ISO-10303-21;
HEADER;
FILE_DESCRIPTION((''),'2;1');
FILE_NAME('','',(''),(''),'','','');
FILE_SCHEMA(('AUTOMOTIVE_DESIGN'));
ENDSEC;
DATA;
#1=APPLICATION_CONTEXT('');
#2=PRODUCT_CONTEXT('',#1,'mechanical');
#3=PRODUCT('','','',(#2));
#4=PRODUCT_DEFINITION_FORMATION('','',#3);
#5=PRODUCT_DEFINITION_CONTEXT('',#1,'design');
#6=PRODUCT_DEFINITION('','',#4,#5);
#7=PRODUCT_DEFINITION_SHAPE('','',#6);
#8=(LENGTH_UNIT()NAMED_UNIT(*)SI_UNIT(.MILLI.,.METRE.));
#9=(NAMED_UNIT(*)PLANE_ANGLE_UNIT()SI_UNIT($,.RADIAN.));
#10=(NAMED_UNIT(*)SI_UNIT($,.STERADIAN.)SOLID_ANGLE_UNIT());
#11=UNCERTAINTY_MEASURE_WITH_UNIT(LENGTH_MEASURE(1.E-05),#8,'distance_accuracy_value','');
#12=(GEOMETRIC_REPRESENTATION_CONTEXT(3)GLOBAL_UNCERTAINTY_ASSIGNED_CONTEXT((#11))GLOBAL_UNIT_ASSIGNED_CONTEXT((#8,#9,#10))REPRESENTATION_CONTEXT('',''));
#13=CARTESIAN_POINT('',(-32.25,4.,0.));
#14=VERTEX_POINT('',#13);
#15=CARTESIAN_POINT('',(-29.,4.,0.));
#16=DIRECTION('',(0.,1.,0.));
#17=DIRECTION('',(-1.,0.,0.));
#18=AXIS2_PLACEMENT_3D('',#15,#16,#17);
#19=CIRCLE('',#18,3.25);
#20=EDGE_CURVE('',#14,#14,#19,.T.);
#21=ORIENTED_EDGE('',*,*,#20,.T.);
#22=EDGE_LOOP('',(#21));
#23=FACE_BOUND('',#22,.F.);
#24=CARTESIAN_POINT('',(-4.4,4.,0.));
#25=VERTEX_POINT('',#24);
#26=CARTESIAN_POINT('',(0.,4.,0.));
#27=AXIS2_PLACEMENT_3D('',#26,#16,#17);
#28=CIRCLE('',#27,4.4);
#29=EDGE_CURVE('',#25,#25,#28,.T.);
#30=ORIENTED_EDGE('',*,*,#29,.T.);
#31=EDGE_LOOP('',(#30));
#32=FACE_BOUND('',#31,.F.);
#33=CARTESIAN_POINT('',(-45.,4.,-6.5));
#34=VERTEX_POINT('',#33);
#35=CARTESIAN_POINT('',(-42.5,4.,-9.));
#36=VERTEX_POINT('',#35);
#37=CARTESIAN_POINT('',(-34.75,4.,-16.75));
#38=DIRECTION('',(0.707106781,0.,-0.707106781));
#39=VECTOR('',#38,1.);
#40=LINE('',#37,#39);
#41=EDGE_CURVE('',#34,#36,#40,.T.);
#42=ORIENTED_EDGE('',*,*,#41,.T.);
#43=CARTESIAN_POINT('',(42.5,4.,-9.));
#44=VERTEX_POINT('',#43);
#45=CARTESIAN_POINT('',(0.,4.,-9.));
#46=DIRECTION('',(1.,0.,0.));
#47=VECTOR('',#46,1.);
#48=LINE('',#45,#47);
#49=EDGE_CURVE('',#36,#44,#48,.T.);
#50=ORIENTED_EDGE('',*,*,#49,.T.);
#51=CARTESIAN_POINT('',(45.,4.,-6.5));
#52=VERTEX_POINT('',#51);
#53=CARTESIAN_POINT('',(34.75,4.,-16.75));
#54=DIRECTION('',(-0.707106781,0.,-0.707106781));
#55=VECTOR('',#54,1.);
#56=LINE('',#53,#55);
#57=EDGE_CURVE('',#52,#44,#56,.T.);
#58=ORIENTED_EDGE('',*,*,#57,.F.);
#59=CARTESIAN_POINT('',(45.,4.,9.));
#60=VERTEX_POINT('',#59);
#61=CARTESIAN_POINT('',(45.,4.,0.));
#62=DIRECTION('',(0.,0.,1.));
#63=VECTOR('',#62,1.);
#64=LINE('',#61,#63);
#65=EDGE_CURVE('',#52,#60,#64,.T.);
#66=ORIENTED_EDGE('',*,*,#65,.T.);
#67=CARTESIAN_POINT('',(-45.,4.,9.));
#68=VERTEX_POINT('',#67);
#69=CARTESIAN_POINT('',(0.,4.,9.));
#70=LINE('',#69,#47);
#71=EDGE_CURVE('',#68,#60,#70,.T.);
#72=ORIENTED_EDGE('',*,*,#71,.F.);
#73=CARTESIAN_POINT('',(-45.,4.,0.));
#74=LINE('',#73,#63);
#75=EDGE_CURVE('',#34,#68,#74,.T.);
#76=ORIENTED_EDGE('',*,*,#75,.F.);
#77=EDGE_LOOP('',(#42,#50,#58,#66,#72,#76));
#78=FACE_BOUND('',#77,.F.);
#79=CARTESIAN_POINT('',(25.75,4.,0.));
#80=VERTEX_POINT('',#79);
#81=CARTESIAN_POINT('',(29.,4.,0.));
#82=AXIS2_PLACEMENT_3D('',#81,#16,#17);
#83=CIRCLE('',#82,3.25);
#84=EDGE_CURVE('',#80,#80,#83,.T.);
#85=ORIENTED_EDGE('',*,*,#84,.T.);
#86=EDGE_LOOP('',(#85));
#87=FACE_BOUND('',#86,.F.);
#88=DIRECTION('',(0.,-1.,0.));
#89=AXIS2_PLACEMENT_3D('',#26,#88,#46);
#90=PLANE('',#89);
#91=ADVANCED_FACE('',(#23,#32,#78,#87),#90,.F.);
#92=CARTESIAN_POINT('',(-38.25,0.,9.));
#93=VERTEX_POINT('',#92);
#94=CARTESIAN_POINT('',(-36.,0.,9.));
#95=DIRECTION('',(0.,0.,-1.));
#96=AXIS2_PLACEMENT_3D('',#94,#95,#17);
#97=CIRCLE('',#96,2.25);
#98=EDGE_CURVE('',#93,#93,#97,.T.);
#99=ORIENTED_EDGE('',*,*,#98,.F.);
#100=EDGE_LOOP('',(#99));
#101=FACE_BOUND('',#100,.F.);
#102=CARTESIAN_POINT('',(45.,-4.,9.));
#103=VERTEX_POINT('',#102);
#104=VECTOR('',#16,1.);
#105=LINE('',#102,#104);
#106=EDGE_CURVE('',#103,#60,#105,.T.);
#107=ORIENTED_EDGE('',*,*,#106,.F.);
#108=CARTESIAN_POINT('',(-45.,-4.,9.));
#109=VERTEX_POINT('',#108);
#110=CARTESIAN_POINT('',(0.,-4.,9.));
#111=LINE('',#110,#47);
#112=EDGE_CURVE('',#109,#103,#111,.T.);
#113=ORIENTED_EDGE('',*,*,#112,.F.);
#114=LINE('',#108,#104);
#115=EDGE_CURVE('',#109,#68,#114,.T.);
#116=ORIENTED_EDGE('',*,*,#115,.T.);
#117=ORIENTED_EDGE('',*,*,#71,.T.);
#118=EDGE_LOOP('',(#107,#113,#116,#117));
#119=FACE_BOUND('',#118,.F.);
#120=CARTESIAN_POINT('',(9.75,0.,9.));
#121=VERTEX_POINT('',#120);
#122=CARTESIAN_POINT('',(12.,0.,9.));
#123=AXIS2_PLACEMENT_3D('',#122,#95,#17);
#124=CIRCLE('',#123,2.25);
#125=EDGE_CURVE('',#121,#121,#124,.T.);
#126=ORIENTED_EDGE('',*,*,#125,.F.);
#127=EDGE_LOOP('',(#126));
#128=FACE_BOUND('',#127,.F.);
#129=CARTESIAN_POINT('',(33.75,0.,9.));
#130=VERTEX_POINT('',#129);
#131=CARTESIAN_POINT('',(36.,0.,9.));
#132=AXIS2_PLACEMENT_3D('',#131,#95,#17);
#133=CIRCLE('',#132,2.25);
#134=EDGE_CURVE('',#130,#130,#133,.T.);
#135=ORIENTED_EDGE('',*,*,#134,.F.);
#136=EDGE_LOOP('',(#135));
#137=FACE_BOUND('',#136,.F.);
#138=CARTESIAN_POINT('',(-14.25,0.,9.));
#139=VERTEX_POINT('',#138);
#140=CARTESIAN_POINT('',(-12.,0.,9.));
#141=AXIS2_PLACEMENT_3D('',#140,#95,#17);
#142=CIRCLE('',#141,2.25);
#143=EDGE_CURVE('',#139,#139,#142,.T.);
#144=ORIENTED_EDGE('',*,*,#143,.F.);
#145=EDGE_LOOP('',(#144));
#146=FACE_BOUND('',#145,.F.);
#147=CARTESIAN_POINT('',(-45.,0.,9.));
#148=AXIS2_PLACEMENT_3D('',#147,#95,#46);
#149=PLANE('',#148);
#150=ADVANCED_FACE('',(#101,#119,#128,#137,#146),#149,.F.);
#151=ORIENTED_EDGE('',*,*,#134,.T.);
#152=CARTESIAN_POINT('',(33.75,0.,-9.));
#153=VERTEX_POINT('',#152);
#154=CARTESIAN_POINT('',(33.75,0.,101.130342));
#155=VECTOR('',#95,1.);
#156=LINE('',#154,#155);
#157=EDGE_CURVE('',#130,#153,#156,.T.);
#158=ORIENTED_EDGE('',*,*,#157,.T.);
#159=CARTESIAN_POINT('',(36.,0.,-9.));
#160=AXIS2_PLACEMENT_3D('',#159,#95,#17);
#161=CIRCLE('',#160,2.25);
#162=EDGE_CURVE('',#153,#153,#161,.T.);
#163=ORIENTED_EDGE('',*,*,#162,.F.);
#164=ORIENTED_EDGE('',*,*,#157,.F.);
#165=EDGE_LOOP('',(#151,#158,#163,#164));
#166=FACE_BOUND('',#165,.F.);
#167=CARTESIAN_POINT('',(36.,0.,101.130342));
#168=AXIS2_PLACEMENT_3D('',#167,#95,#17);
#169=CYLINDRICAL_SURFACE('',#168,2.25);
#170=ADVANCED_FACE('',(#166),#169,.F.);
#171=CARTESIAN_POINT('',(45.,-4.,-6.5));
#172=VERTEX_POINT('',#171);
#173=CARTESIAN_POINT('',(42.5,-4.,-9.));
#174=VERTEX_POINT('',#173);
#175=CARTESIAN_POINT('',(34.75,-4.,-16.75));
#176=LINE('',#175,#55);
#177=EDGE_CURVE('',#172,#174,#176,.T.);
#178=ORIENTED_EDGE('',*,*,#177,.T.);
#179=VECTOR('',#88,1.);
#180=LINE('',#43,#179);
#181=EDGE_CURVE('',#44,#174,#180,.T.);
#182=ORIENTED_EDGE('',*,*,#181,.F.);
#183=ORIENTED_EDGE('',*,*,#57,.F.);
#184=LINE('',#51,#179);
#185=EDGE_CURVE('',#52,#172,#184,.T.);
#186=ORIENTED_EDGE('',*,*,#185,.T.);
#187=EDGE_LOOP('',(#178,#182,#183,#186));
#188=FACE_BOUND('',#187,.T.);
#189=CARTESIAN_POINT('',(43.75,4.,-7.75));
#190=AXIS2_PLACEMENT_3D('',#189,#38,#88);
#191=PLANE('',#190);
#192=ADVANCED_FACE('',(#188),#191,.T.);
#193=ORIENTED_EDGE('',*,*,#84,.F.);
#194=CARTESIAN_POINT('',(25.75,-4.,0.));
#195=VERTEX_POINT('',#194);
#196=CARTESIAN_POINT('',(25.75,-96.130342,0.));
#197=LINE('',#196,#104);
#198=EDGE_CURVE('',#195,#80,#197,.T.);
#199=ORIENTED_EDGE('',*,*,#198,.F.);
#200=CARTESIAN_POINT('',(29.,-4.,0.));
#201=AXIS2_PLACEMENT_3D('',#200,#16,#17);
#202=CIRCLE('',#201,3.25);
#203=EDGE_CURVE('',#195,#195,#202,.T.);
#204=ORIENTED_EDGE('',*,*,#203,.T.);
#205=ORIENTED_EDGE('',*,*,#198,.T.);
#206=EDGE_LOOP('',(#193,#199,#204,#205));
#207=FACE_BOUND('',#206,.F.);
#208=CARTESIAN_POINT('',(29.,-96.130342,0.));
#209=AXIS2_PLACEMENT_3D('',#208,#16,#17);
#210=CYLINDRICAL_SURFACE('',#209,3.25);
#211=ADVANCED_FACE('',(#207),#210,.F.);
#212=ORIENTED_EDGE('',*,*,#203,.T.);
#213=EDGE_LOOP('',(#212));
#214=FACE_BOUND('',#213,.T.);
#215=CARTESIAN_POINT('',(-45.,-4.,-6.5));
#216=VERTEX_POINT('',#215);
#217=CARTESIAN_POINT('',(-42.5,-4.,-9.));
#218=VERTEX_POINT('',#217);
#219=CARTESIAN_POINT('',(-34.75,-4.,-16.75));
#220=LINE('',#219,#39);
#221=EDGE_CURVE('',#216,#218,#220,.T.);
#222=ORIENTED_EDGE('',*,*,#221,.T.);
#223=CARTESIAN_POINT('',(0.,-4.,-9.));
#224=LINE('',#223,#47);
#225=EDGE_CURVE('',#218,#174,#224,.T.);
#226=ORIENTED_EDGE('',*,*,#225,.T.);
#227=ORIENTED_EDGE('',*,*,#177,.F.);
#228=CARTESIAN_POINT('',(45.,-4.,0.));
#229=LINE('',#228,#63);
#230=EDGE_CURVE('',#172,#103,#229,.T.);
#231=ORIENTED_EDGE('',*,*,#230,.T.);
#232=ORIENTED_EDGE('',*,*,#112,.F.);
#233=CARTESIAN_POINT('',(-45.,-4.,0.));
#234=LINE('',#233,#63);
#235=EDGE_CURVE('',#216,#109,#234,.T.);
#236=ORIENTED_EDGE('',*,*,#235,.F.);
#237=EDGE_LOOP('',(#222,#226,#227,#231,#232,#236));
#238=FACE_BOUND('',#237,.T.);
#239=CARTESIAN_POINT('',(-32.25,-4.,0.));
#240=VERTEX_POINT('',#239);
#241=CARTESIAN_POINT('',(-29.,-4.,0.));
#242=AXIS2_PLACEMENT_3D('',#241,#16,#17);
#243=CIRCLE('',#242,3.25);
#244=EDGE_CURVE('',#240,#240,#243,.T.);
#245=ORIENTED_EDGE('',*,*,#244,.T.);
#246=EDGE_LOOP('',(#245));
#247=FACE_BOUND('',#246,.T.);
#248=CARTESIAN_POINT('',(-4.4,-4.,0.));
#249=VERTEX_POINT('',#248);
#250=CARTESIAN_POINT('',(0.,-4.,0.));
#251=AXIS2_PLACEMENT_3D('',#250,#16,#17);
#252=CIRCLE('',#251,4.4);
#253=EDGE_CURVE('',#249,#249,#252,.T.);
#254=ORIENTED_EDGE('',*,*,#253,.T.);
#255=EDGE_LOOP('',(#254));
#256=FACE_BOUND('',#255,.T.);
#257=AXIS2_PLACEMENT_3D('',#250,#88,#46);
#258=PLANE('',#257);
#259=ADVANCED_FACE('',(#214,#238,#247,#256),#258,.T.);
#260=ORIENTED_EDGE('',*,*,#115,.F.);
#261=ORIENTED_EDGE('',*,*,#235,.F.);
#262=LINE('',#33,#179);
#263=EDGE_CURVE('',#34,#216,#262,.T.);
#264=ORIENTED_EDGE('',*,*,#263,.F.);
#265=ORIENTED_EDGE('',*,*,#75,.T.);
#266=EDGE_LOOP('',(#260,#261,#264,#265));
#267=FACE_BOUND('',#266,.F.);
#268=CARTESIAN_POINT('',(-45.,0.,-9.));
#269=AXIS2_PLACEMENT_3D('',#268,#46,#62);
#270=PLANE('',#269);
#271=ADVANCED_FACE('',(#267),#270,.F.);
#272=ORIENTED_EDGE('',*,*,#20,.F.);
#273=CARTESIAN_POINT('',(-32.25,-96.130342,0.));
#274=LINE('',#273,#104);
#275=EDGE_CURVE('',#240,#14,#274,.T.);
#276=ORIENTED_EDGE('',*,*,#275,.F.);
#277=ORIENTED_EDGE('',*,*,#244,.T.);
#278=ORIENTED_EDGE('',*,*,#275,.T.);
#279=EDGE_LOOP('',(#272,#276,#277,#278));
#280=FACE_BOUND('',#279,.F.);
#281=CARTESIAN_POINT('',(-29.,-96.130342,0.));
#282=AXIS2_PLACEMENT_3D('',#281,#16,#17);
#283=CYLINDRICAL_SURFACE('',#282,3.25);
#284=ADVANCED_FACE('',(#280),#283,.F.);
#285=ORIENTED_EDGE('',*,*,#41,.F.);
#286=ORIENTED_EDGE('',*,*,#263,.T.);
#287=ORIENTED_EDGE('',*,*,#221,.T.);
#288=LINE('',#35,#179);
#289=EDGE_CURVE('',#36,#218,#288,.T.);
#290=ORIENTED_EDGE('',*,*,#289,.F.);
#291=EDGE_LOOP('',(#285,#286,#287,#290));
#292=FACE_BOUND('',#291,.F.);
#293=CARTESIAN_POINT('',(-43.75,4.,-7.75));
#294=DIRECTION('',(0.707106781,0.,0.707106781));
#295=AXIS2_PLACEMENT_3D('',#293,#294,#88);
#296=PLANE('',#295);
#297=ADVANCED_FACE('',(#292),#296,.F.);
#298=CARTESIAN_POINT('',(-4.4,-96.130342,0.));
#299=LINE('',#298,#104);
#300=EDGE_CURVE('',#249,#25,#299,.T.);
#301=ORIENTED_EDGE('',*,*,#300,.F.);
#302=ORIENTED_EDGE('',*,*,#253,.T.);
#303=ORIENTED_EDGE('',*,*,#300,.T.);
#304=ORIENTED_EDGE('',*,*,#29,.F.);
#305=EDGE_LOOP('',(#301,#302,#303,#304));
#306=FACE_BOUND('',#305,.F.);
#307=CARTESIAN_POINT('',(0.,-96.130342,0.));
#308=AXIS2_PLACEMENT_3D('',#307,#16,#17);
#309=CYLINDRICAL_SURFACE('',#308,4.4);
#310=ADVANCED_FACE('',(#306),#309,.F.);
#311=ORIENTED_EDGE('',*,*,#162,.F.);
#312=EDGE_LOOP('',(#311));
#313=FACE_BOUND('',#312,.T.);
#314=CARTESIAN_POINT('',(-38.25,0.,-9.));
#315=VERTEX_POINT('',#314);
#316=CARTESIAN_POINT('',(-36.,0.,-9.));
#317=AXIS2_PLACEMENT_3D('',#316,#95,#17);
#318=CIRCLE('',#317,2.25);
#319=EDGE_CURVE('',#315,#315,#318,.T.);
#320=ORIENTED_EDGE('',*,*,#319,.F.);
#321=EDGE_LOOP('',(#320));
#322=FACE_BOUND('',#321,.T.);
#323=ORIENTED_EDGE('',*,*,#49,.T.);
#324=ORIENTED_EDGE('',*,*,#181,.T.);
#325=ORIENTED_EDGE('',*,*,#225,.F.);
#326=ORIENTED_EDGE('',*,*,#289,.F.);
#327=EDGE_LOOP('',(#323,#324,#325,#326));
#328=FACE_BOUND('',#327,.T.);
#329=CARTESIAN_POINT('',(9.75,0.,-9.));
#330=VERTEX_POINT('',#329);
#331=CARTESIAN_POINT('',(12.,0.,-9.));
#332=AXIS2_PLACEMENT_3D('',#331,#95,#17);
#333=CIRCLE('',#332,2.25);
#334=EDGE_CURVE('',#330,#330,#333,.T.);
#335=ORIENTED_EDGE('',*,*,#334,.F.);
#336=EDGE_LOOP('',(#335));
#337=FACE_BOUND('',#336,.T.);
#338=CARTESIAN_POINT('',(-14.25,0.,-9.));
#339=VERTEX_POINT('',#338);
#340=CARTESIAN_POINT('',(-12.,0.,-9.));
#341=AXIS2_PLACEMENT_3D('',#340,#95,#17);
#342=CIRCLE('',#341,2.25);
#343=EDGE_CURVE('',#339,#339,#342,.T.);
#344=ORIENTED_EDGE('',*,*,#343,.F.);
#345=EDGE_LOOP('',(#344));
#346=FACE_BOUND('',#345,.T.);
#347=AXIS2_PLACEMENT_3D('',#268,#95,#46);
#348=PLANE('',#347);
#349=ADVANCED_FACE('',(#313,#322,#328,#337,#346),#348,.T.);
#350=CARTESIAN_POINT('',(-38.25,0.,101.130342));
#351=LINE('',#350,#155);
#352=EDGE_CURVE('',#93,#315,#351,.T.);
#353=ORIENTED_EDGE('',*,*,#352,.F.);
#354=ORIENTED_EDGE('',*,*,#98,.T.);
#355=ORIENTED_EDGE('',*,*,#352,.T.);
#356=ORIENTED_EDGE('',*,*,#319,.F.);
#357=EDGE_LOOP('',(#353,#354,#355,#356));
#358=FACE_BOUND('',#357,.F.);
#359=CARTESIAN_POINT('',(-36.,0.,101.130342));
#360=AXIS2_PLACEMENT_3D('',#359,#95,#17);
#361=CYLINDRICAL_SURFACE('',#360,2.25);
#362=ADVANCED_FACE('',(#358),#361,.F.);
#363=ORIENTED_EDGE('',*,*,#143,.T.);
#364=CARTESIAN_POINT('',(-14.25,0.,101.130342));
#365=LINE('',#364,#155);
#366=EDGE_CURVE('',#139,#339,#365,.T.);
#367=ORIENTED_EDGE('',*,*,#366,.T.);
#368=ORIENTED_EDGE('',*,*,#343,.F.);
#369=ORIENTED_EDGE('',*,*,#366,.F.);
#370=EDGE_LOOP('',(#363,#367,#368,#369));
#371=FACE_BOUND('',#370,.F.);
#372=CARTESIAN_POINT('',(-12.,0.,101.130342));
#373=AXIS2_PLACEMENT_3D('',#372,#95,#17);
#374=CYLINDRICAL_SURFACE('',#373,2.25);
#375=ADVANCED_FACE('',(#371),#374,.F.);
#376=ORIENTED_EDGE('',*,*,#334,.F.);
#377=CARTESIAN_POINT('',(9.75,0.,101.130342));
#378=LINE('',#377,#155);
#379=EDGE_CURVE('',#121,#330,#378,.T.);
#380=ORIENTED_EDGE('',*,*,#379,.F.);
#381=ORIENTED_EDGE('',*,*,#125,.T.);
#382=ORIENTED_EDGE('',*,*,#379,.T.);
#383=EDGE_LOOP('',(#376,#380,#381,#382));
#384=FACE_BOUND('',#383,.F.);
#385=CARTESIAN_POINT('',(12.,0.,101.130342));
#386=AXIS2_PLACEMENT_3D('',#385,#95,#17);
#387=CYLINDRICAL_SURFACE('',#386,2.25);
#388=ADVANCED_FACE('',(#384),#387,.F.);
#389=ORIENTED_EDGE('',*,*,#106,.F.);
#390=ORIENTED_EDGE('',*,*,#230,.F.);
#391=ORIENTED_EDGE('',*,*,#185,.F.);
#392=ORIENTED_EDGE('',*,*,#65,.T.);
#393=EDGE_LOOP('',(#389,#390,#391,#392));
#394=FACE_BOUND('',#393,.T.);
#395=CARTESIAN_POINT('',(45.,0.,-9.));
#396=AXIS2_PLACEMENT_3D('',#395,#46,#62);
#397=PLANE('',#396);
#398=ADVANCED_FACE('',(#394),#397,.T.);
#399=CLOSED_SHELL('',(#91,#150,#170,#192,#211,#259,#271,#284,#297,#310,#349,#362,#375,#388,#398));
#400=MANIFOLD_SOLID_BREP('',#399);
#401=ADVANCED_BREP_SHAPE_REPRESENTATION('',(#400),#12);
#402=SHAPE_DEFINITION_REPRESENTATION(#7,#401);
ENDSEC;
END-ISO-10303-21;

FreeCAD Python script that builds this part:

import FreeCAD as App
import Part
import Sketcher

V = App.Vector


def edges_at(feature, points):
    """Names of the edges that pass closest to the given points."""
    edges = feature.Shape.Edges
    near = lambda p: min(range(len(edges)), key=lambda i: edges[i].distToShape(Part.Vertex(*p))[0])
    return sorted({f"Edge{near(p) + 1}" for p in points})

doc = App.newDocument("Part")
params = doc.addObject("Spreadsheet::Sheet", "Params")
for row, (alias, value) in enumerate([
    ("sketch1_width", "90 mm"),
    ("sketch1_height", "18 mm"),
    ("pad1_length", "4 mm"),
    ("pad1_length2", "4 mm"),
    ("chamfer_size", "2.5 mm"),
    ("sketch2_diameter", "6.5 mm"),
    ("hole_diameter", "6.5 mm"),
    ("sketch3_diameter", "8.8 mm"),
    ("hole2_diameter", "8.8 mm"),
    ("sketch4_diameter", "4.5 mm"),
    ("hole3_diameter", "4.5 mm"),
], start=1):
    params.set(f"A{row}", alias)
    params.set(f"B{row}", "=" + value)
    params.setAlias(f"B{row}", alias)

body = doc.addObject("PartDesign::Body", "Body")

# Sketch on XZ plane
sketch1 = body.newObject("Sketcher::SketchObject", "Sketch")
sketch1.AttachmentSupport = (doc.getObject("XZ_Plane"), [""])
sketch1.MapMode = "FlatFace"
sketch1.addGeometry(Part.LineSegment(V(-45, 9, 0), V(-45, -9, 0)), False)
sketch1.addGeometry(Part.LineSegment(V(-45, -9, 0), V(45, -9, 0)), False)
sketch1.addGeometry(Part.LineSegment(V(45, -9, 0), V(45, 9, 0)), False)
sketch1.addGeometry(Part.LineSegment(V(45, 9, 0), V(-45, 9, 0)), False)
sketch1.addConstraint(Sketcher.Constraint("Coincident", 0, 2, 1, 1))
sketch1.addConstraint(Sketcher.Constraint("Coincident", 1, 2, 2, 1))
sketch1.addConstraint(Sketcher.Constraint("Coincident", 2, 2, 3, 1))
sketch1.addConstraint(Sketcher.Constraint("Coincident", 3, 2, 0, 1))
sketch1.addConstraint(Sketcher.Constraint("Vertical", 0))
sketch1.addConstraint(Sketcher.Constraint("Horizontal", 1))
sketch1.addConstraint(Sketcher.Constraint("Vertical", 2))
sketch1.addConstraint(Sketcher.Constraint("Horizontal", 3))
sketch1.addConstraint(Sketcher.Constraint("Symmetric", 0, 2, 2, 2, -1, 1))
sketch1.addConstraint(Sketcher.Constraint("DistanceX", 1, 1, 1, 2, 90.0))
sketch1.addConstraint(Sketcher.Constraint("DistanceY", 0, 2, 0, 1, 18.0))
sketch1.setExpression("Constraints[9]", "Params.sketch1_width")
sketch1.setExpression("Constraints[10]", "Params.sketch1_height")
pad1 = body.newObject("PartDesign::Pad", "Pad")
pad1.Profile = sketch1
pad1.Type = "TwoLengths"
pad1.setExpression("Length", "Params.pad1_length")
pad1.setExpression("Length2", "Params.pad1_length2")
doc.recompute()

chamfer = body.newObject("PartDesign::Chamfer", "Chamfer")
chamfer.Base = (pad1, edges_at(pad1, [(-45, 0, -9), (45, 0, -9)]))
chamfer.setExpression("Size", "Params.chamfer_size")

# Sketch on XZ plane
sketch2 = body.newObject("Sketcher::SketchObject", "Sketch001")
sketch2.AttachmentSupport = (doc.getObject("XZ_Plane"), [""])
sketch2.MapMode = "FlatFace"
sketch2.AttachmentOffset = App.Placement(V(0, 0, 4), App.Rotation())
sketch2.addGeometry(Part.Circle(V(-29, 0, 0), V(0, 0, 1), 3.2), False)
sketch2.addGeometry(Part.Circle(V(29, 0, 0), V(0, 0, 1), 3.2), False)
sketch2.addConstraint(Sketcher.Constraint("Equal", 0, 1))
sketch2.addConstraint(Sketcher.Constraint("Symmetric", 0, 3, 1, 3, -1, 1))
sketch2.addConstraint(Sketcher.Constraint("PointOnObject", 0, 3, -1))
sketch2.addConstraint(Sketcher.Constraint("Diameter", 0, 6.5))
sketch2.addConstraint(Sketcher.Constraint("DistanceX", 0, 3, -1, 1, 29.0))
sketch2.setExpression("Constraints[3]", "Params.sketch2_diameter")
doc.recompute()
hole = body.newObject("PartDesign::Hole", "Hole")
hole.Profile = sketch2
hole.ThreadType = "None"
hole.setExpression("Diameter", "Params.hole_diameter")
hole.DepthType = "ThroughAll"

# Sketch on XZ plane
sketch3 = body.newObject("Sketcher::SketchObject", "Sketch002")
sketch3.AttachmentSupport = (doc.getObject("XZ_Plane"), [""])
sketch3.MapMode = "FlatFace"
sketch3.AttachmentOffset = App.Placement(V(0, 0, 4), App.Rotation())
sketch3.addGeometry(Part.Circle(V(0, 0, 0), V(0, 0, 1), 4.4), False)
sketch3.addConstraint(Sketcher.Constraint("Coincident", 0, 3, -1, 1))
sketch3.addConstraint(Sketcher.Constraint("Diameter", 0, 8.8))
sketch3.setExpression("Constraints[1]", "Params.sketch3_diameter")
doc.recompute()
hole2 = body.newObject("PartDesign::Hole", "Hole001")
hole2.Profile = sketch3
hole2.ThreadType = "None"
hole2.setExpression("Diameter", "Params.hole2_diameter")
hole2.DepthType = "ThroughAll"

# Sketch on XY plane
sketch4 = body.newObject("Sketcher::SketchObject", "Sketch003")
sketch4.AttachmentSupport = (doc.getObject("XY_Plane"), [""])
sketch4.MapMode = "FlatFace"
sketch4.AttachmentOffset = App.Placement(V(0, 0, 9), App.Rotation())
sketch4.addGeometry(Part.Circle(V(-36, 0, 0), V(0, 0, 1), 2.2), False)
sketch4.addGeometry(Part.Circle(V(-12, 0, 0), V(0, 0, 1), 2.2), False)
sketch4.addGeometry(Part.Circle(V(12, 0, 0), V(0, 0, 1), 2.2), False)
sketch4.addGeometry(Part.Circle(V(36, 0, 0), V(0, 0, 1), 2.2), False)
sketch4.addConstraint(Sketcher.Constraint("Equal", 0, 1))
sketch4.addConstraint(Sketcher.Constraint("Equal", 1, 2))
sketch4.addConstraint(Sketcher.Constraint("Equal", 2, 3))
sketch4.addConstraint(Sketcher.Constraint("Symmetric", 1, 3, 2, 3, -1, 1))
sketch4.addConstraint(Sketcher.Constraint("Symmetric", 0, 3, 3, 3, -1, 1))
sketch4.addConstraint(Sketcher.Constraint("PointOnObject", 0, 3, -1))
sketch4.addConstraint(Sketcher.Constraint("PointOnObject", 1, 3, -1))
sketch4.addConstraint(Sketcher.Constraint("Diameter", 0, 4.5))
sketch4.addConstraint(Sketcher.Constraint("DistanceX", 0, 3, -1, 1, 36.0))
sketch4.addConstraint(Sketcher.Constraint("DistanceX", 1, 3, -1, 1, 12.0))
sketch4.setExpression("Constraints[7]", "Params.sketch4_diameter")
doc.recompute()
hole3 = body.newObject("PartDesign::Hole", "Hole002")
hole3.Profile = sketch4
hole3.ThreadType = "None"
hole3.setExpression("Diameter", "Params.hole3_diameter")
hole3.DepthType = "ThroughAll"

doc.recompute()
